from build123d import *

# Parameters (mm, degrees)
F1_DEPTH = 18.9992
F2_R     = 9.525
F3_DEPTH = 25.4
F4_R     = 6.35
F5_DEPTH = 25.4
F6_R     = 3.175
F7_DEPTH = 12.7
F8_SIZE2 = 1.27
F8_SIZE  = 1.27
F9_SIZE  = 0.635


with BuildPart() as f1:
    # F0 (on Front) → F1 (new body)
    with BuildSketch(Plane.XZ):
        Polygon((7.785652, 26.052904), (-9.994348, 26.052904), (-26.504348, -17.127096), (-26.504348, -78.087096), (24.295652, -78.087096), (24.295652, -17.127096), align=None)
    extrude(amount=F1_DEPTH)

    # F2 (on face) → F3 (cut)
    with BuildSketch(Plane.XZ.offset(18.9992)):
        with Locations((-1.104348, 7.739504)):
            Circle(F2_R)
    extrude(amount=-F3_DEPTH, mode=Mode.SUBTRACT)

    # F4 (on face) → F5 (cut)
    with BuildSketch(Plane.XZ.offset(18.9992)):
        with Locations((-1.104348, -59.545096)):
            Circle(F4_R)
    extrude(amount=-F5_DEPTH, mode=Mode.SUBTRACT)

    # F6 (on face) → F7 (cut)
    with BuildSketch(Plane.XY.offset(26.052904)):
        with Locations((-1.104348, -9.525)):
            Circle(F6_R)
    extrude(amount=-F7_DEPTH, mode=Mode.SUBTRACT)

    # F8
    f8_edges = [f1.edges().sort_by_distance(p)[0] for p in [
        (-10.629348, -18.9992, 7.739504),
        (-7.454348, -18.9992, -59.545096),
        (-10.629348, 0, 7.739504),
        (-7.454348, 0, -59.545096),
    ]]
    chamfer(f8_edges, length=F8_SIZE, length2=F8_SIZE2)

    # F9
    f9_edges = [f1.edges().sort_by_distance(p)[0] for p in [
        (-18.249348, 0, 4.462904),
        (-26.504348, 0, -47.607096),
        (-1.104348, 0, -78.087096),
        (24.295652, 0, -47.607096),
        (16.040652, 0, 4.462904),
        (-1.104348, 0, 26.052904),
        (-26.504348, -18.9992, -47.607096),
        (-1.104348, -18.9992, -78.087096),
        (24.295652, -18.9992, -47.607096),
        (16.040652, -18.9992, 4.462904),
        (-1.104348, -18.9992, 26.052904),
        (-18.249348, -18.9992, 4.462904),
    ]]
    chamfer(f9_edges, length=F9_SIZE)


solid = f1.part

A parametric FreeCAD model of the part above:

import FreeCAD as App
import Part
import Sketcher
from FreeCAD import Vector
Q = App.Units.Quantity


def edges_at(feature, points):
    """Names of the edges that pass closest to the given points."""
    edges = feature.Shape.Edges
    near = lambda p: min(range(len(edges)), key=lambda i: edges[i].distToShape(Part.Vertex(*p))[0])
    return sorted({f"Edge{near(p) + 1}" for p in points})


def add_polygon(sketch, points):
    """Adds a closed chain of lines whose ends are joined by coincident constraints."""
    first, n = sketch.GeometryCount, len(points)
    for a, b in zip(points, points[1:] + points[:1]):
        sketch.addGeometry(Part.LineSegment(App.Vector(*a, 0), App.Vector(*b, 0)), False)
    for i in range(n):
        sketch.addConstraint(Sketcher.Constraint("Coincident", first + i, 2, first + (i + 1) % n, 1))

doc = App.newDocument("Part")
params = doc.addObject("Spreadsheet::Sheet", "Params")
for row, (alias, value) in enumerate([
    ("sketch1_width", "2 in"),
    ("sketch1_width2", "0.7 in"),
    ("sketch1_height", "2.4 in"),
    ("pad1_length", "0.748 in"),
    ("sketch2_diameter", "0.75 in"),
    ("pocket1_length", "1 in"),
    ("sketch3_diameter", "0.5 in"),
    ("pocket2_length", "1 in"),
    ("sketch4_diameter", "0.25 in"),
    ("pocket3_length", "0.5 in"),
    ("chamfer_size", "0.05 in"),
    ("chamfer_size2", "0.05 in"),
    ("chamfer2_size", "0.025 in"),
], start=1):
    params.set(f"A{row}", alias)
    params.set(f"B{row}", "=" + value)
    params.setAlias(f"B{row}", alias)

body = doc.addObject("PartDesign::Body", "Body")

sketch1 = doc.addObject("Sketcher::SketchObject", "Sketch")
body.addObject(sketch1)
sketch1.AttachmentSupport = (doc.XZ_Plane, [""])
sketch1.MapMode = "FlatFace"
add_polygon(sketch1, [(8, 26), (-10, 26), (-27, -17), (-27, -78), (24, -78), (24, -17)])
sketch1.addConstraint([
    Sketcher.Constraint("Horizontal", 0),
    Sketcher.Constraint("Vertical", 2),
    Sketcher.Constraint("Horizontal", 3),
    Sketcher.Constraint("Vertical", 4),
    Sketcher.Constraint("Horizontal", 1, 2, 4, 2),
    Sketcher.Constraint("Equal", 1, 5),
    Sketcher.Constraint("DistanceX", 3, 1, 3, 2, Q("2 in")),
    Sketcher.Constraint("DistanceX", 0, 2, 0, 1, Q("0.7 in")),
    Sketcher.Constraint("DistanceY", 2, 2, 2, 1, Q("2.4 in")),
    Sketcher.Constraint("DistanceY", 1, 2, 0, 2, Q("1.7 in")),
    Sketcher.Constraint("DistanceX", 1, 2, -1, 1, Q("26.504348 mm")),
    Sketcher.Constraint("DistanceY", -1, 1, 0, 2, Q("26.052904 mm")),
])
sketch1.setExpression("Constraints[12]", "Params.sketch1_width")
sketch1.setExpression("Constraints[13]", "Params.sketch1_width2")
sketch1.setExpression("Constraints[14]", "Params.sketch1_height")
pad1 = doc.addObject("PartDesign::Pad", "Pad")
body.addObject(pad1)
pad1.Profile = sketch1
pad1.setExpression("Length", "Params.pad1_length")

sketch2 = doc.addObject("Sketcher::SketchObject", "Sketch001")
body.addObject(sketch2)
sketch2.AttachmentSupport = (doc.XZ_Plane, [""])
sketch2.MapMode = "FlatFace"
sketch2.AttachmentOffset = App.Placement(Vector(0, 0, 0.748 * 25.4), App.Rotation())
sketch2.addGeometry(Part.Circle(Vector(-1, 8, 0), Vector(0, 0, 1), 10), False)
sketch2.addConstraint([
    Sketcher.Constraint("Diameter", 0, Q("0.75 in")),
    Sketcher.Constraint("DistanceX", 0, 3, -1, 1, Q("1.104348 mm")),
    Sketcher.Constraint("DistanceY", -1, 1, 0, 3, Q("7.739504 mm")),
])
sketch2.setExpression("Constraints[0]", "Params.sketch2_diameter")
pocket1 = doc.addObject("PartDesign::Pocket", "Pocket")
body.addObject(pocket1)
pocket1.Profile = sketch2
pocket1.setExpression("Length", "Params.pocket1_length")

sketch3 = doc.addObject("Sketcher::SketchObject", "Sketch002")
body.addObject(sketch3)
sketch3.AttachmentSupport = (doc.XZ_Plane, [""])
sketch3.MapMode = "FlatFace"
sketch3.AttachmentOffset = App.Placement(Vector(0, 0, 0.748 * 25.4), App.Rotation())
sketch3.addGeometry(Part.Circle(Vector(-1, -60, 0), Vector(0, 0, 1), 6), False)
sketch3.addConstraint([
    Sketcher.Constraint("Diameter", 0, Q("0.5 in")),
    Sketcher.Constraint("DistanceX", 0, 3, -1, 1, Q("1.104348 mm")),
    Sketcher.Constraint("DistanceY", 0, 3, -1, 1, Q("59.545096 mm")),
])
sketch3.setExpression("Constraints[0]", "Params.sketch3_diameter")
pocket2 = doc.addObject("PartDesign::Pocket", "Pocket001")
body.addObject(pocket2)
pocket2.Profile = sketch3
pocket2.setExpression("Length", "Params.pocket2_length")

sketch4 = doc.addObject("Sketcher::SketchObject", "Sketch003")
body.addObject(sketch4)
sketch4.AttachmentSupport = (doc.XY_Plane, [""])
sketch4.MapMode = "FlatFace"
sketch4.AttachmentOffset = App.Placement(Vector(0, 0, 26.052904), App.Rotation())
sketch4.addGeometry(Part.Circle(Vector(-1.1, -9.5, 0), Vector(0, 0, 1), 3.2), False)
sketch4.addConstraint([
    Sketcher.Constraint("Diameter", 0, Q("0.25 in")),
    Sketcher.Constraint("DistanceY", 0, 3, -1, 1, Q("0.375 in")),
    Sketcher.Constraint("DistanceX", 0, 3, -1, 1, Q("1.104348 mm")),
])
sketch4.setExpression("Constraints[0]", "Params.sketch4_diameter")
pocket3 = doc.addObject("PartDesign::Pocket", "Pocket002")
body.addObject(pocket3)
pocket3.Profile = sketch4
pocket3.setExpression("Length", "Params.pocket3_length")
doc.recompute()

chamfer = doc.addObject("PartDesign::Chamfer", "Chamfer")
body.addObject(chamfer)
chamfer.Base = (pocket3, edges_at(pocket3, [
    (-10.629, -18.999, 7.74),
    (-7.454, -18.999, -59.545),
    (-10.629, 0, 7.74),
    (-7.454, 0, -59.545),
]))
chamfer.ChamferType = "Two distances"
chamfer.setExpression("Size", "Params.chamfer_size")
chamfer.setExpression("Size2", "Params.chamfer_size2")
doc.recompute()

chamfer2 = doc.addObject("PartDesign::Chamfer", "Chamfer001")
body.addObject(chamfer2)
chamfer2.Base = (chamfer, edges_at(chamfer, [
    (-18.249, 0, 4.463),
    (-26.504, 0, -47.607),
    (-1.104, 0, -78.087),
    (24.296, 0, -47.607),
    (16.041, 0, 4.463),
    (-1.104, 0, 26.053),
    (-26.504, -18.999, -47.607),
    (-1.104, -18.999, -78.087),
    (24.296, -18.999, -47.607),
    (16.041, -18.999, 4.463),
    (-1.104, -18.999, 26.053),
    (-18.249, -18.999, 4.463),
]))
chamfer2.setExpression("Size", "Params.chamfer2_size")

doc.recompute()
